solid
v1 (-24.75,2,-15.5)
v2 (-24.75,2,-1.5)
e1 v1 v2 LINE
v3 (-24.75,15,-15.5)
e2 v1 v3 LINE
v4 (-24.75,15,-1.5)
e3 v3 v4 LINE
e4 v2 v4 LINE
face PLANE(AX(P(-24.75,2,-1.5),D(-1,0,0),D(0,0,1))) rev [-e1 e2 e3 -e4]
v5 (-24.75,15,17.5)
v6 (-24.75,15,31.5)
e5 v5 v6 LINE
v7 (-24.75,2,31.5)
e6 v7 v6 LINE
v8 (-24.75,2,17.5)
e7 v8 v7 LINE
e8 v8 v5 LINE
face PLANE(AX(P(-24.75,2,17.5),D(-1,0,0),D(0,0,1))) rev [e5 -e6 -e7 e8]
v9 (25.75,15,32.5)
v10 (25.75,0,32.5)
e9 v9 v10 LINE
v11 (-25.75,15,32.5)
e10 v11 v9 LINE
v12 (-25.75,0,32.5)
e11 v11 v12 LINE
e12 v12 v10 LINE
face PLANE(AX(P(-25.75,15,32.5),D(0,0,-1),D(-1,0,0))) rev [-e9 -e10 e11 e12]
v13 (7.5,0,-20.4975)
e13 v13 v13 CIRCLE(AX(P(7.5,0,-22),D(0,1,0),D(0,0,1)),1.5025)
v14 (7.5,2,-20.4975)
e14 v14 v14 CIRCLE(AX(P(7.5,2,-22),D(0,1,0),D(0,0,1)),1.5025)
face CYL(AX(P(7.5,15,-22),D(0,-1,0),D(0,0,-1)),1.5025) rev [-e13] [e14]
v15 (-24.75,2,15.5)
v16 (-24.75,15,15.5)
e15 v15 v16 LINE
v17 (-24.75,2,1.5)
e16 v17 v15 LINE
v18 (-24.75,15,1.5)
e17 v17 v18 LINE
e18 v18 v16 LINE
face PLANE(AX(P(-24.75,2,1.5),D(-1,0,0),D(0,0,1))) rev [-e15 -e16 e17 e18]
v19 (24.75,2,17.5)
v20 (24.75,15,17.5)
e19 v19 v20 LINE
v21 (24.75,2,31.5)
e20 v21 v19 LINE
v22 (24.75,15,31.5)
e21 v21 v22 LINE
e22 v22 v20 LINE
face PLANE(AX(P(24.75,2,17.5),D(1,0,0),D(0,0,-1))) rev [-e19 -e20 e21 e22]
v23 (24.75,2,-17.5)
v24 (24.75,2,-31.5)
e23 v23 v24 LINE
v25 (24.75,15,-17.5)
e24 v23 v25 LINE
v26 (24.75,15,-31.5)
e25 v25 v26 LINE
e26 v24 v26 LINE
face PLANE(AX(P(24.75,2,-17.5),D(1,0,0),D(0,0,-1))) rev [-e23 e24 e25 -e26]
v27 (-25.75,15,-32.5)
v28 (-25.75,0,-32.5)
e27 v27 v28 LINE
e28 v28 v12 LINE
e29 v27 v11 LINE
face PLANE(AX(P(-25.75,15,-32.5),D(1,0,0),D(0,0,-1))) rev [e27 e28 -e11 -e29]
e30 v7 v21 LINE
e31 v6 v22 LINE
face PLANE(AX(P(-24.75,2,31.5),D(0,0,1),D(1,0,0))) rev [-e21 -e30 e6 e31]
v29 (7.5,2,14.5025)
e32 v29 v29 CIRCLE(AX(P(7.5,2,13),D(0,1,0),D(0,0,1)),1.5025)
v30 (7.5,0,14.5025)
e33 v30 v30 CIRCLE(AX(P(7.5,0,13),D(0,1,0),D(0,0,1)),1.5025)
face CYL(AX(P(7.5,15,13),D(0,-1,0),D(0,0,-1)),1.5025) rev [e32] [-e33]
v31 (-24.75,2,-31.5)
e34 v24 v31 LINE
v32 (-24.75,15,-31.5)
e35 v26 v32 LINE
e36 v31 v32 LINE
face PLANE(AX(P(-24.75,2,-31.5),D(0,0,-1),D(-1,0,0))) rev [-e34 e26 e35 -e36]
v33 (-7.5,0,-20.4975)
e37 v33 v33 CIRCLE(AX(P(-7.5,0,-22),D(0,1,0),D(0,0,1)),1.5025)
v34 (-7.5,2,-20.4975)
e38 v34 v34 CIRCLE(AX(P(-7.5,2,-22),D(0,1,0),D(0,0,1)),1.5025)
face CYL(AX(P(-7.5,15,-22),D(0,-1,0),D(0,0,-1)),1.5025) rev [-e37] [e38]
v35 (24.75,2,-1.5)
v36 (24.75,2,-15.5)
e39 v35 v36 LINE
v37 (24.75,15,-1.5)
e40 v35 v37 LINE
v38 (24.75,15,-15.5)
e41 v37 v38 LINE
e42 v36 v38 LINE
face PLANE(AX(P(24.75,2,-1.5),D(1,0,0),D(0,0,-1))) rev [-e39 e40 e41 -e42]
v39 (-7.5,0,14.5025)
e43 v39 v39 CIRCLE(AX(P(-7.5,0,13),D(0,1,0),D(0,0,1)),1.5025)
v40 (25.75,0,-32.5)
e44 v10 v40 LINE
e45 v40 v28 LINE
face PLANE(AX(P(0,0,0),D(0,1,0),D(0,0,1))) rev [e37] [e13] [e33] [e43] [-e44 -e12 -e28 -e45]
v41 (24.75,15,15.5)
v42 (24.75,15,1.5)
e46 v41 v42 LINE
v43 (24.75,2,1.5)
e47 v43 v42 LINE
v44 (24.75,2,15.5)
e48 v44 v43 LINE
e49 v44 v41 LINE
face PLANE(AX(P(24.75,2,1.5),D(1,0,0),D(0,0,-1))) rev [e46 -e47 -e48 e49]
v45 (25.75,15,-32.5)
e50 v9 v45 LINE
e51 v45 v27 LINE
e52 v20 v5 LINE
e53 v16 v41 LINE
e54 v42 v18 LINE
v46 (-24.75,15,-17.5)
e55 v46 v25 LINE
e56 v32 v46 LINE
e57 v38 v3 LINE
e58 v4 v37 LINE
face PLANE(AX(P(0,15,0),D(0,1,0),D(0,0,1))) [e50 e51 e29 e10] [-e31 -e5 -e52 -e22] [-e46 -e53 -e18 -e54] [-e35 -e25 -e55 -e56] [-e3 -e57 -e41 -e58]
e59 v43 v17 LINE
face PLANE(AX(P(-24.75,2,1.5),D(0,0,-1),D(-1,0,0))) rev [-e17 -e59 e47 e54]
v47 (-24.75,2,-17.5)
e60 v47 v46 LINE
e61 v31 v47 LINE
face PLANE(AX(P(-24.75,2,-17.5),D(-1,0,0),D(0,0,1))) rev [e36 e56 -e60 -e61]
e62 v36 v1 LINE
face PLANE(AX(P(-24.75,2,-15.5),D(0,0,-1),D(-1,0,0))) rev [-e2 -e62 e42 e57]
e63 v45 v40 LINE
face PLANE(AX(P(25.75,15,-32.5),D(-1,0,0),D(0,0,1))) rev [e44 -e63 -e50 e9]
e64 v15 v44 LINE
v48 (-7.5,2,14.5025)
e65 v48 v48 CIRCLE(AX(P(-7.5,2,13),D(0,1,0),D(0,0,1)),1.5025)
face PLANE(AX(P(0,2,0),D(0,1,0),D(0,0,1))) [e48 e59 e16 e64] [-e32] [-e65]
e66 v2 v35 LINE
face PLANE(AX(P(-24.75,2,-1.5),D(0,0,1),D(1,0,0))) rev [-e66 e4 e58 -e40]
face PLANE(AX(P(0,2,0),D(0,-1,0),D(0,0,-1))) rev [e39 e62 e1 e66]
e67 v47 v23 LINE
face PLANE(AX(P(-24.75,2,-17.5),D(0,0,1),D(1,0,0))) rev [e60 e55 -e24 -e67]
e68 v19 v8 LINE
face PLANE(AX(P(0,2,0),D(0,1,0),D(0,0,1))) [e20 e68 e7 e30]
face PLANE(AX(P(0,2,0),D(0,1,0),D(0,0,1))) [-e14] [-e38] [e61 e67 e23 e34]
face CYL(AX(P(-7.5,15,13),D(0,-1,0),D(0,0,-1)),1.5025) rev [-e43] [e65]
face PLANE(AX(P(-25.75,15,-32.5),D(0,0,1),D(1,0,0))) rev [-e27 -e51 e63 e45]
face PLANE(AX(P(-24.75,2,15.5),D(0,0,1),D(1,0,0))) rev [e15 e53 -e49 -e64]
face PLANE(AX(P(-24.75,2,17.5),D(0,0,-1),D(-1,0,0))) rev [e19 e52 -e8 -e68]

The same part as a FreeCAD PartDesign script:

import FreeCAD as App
import Part
import Sketcher
from FreeCAD import Vector


def add_polygon(sketch, points):
    """Adds a closed chain of lines whose ends are joined by coincident constraints."""
    first, n = sketch.GeometryCount, len(points)
    for a, b in zip(points, points[1:] + points[:1]):
        sketch.addGeometry(Part.LineSegment(App.Vector(*a, 0), App.Vector(*b, 0)), False)
    for i in range(n):
        sketch.addConstraint(Sketcher.Constraint("Coincident", first + i, 2, first + (i + 1) % n, 1))

doc = App.newDocument("Part")
body = doc.addObject("PartDesign::Body", "Body")

# Sketch on XZ plane
sketch1 = body.newObject("Sketcher::SketchObject", "Sketch")
sketch1.AttachmentSupport = (doc.getObject("XZ_Plane"), [""])
sketch1.MapMode = "FlatFace"
add_polygon(sketch1, [(-25.75, -32.5), (-25.75, 32.5), (25.75, 32.5), (25.75, -32.5)])  # lines 0-3
sketch1.addGeometry(Part.Circle(Vector(-7.5, 13, 0), Vector(0, 0, 1), 1.5025), False)  # 4
sketch1.addGeometry(Part.Circle(Vector(7.5, 13, 0), Vector(0, 0, 1), 1.5025), False)  # 5
sketch1.addGeometry(Part.Circle(Vector(-7.5, -22, 0), Vector(0, 0, 1), 1.5025), False)  # 6
sketch1.addGeometry(Part.Circle(Vector(7.5, -22, 0), Vector(0, 0, 1), 1.5025), False)  # 7
sketch1.addConstraint(Sketcher.Constraint("Vertical", 0))
sketch1.addConstraint(Sketcher.Constraint("Horizontal", 1))
sketch1.addConstraint(Sketcher.Constraint("Vertical", 2))
sketch1.addConstraint(Sketcher.Constraint("Horizontal", 3))
sketch1.addConstraint(Sketcher.Constraint("Equal", 4, 5))
sketch1.addConstraint(Sketcher.Constraint("Equal", 5, 6))
sketch1.addConstraint(Sketcher.Constraint("Equal", 6, 7))
sketch1.addConstraint(Sketcher.Constraint("Symmetric", 0, 2, 2, 2, -1, 1))
sketch1.addConstraint(Sketcher.Constraint("Symmetric", 4, 3, 5, 3, -2))
sketch1.addConstraint(Sketcher.Constraint("Symmetric", 6, 3, 7, 3, -2))
sketch1.addConstraint(Sketcher.Constraint("Vertical", 4, 3, 6, 3))
sketch1.addConstraint(Sketcher.Constraint("DistanceY", 0, 1, 0, 2, 65.0))
sketch1.addConstraint(Sketcher.Constraint("Diameter", 4, 3.005))
sketch1.addConstraint(Sketcher.Constraint("DistanceX", 1, 1, 1, 2, 51.5))
sketch1.addConstraint(Sketcher.Constraint("DistanceY", -1, 1, 4, 3, 13.0))
sketch1.addConstraint(Sketcher.Constraint("DistanceY", 6, 3, -1, 1, 22.0))
sketch1.addConstraint(Sketcher.Constraint("DistanceX", 4, 3, 5, 3, 15.0))
pad1 = body.newObject("PartDesign::Pad", "Pad")
pad1.Profile = sketch1
pad1.Length = 15
pad1.Reversed = True

# Sketch on XZ plane
sketch2 = body.newObject("Sketcher::SketchObject", "Sketch001")
sketch2.AttachmentSupport = (doc.getObject("XZ_Plane"), [""])
sketch2.MapMode = "FlatFace"
sketch2.AttachmentOffset = App.Placement(Vector(0, 0, -15), App.Rotation())
add_polygon(sketch2, [(-24.75, 1.5), (-24.75, 15.5), (24.75, 15.5), (24.75, 1.5)])  # lines 0-3
add_polygon(sketch2, [(-24.75, 17.5), (-24.75, 31.5), (24.75, 31.5), (24.75, 17.5)])  # lines 4-7
add_polygon(sketch2, [(-24.75, -31.5), (-24.75, -17.5), (24.75, -17.5), (24.75, -31.5)])  # lines 8-11
add_polygon(sketch2, [(-24.75, -15.5), (-24.75, -1.5), (24.75, -1.5), (24.75, -15.5)])  # lines 12-15
sketch2.addConstraint(Sketcher.Constraint("Vertical", 0))
sketch2.addConstraint(Sketcher.Constraint("Horizontal", 1))
sketch2.addConstraint(Sketcher.Constraint("Vertical", 2))
sketch2.addConstraint(Sketcher.Constraint("Horizontal", 3))
sketch2.addConstraint(Sketcher.Constraint("Vertical", 4))
sketch2.addConstraint(Sketcher.Constraint("Horizontal", 5))
sketch2.addConstraint(Sketcher.Constraint("Vertical", 6))
sketch2.addConstraint(Sketcher.Constraint("Horizontal", 7))
sketch2.addConstraint(Sketcher.Constraint("Vertical", 8))
sketch2.addConstraint(Sketcher.Constraint("Horizontal", 9))
sketch2.addConstraint(Sketcher.Constraint("Vertical", 10))
sketch2.addConstraint(Sketcher.Constraint("Horizontal", 11))
sketch2.addConstraint(Sketcher.Constraint("Vertical", 12))
sketch2.addConstraint(Sketcher.Constraint("Horizontal", 13))
sketch2.addConstraint(Sketcher.Constraint("Vertical", 14))
sketch2.addConstraint(Sketcher.Constraint("Horizontal", 15))
sketch2.addConstraint(Sketcher.Constraint("Symmetric", 6, 2, 8, 2, -1, 1))
sketch2.addConstraint(Sketcher.Constraint("Symmetric", 4, 2, 10, 2, -1, 1))
sketch2.addConstraint(Sketcher.Constraint("Symmetric", 2, 2, 12, 2, -1, 1))
sketch2.addConstraint(Sketcher.Constraint("Symmetric", 0, 2, 14, 2, -1, 1))
sketch2.addConstraint(Sketcher.Constraint("Vertical", 3, 2, 4, 2))
sketch2.addConstraint(Sketcher.Constraint("Vertical", 2, 2, 5, 2))
sketch2.addConstraint(Sketcher.Constraint("Vertical", 7, 2, 8, 2))
sketch2.addConstraint(Sketcher.Constraint("Equal", 2, 4))
sketch2.addConstraint(Sketcher.Constraint("DistanceY", 0, 1, 0, 2, 14.0))
sketch2.addConstraint(Sketcher.Constraint("DistanceX", 1, 1, 1, 2, 49.5))
sketch2.addConstraint(Sketcher.Constraint("DistanceY", 0, 2, 4, 2, 16.0))
sketch2.addConstraint(Sketcher.Constraint("DistanceY", 8, 2, 3, 2, 19.0))
pocket1 = body.newObject("PartDesign::Pocket", "Pocket")
pocket1.Profile = sketch2
pocket1.Length = 13
pocket1.Reversed = True

doc.recompute()
